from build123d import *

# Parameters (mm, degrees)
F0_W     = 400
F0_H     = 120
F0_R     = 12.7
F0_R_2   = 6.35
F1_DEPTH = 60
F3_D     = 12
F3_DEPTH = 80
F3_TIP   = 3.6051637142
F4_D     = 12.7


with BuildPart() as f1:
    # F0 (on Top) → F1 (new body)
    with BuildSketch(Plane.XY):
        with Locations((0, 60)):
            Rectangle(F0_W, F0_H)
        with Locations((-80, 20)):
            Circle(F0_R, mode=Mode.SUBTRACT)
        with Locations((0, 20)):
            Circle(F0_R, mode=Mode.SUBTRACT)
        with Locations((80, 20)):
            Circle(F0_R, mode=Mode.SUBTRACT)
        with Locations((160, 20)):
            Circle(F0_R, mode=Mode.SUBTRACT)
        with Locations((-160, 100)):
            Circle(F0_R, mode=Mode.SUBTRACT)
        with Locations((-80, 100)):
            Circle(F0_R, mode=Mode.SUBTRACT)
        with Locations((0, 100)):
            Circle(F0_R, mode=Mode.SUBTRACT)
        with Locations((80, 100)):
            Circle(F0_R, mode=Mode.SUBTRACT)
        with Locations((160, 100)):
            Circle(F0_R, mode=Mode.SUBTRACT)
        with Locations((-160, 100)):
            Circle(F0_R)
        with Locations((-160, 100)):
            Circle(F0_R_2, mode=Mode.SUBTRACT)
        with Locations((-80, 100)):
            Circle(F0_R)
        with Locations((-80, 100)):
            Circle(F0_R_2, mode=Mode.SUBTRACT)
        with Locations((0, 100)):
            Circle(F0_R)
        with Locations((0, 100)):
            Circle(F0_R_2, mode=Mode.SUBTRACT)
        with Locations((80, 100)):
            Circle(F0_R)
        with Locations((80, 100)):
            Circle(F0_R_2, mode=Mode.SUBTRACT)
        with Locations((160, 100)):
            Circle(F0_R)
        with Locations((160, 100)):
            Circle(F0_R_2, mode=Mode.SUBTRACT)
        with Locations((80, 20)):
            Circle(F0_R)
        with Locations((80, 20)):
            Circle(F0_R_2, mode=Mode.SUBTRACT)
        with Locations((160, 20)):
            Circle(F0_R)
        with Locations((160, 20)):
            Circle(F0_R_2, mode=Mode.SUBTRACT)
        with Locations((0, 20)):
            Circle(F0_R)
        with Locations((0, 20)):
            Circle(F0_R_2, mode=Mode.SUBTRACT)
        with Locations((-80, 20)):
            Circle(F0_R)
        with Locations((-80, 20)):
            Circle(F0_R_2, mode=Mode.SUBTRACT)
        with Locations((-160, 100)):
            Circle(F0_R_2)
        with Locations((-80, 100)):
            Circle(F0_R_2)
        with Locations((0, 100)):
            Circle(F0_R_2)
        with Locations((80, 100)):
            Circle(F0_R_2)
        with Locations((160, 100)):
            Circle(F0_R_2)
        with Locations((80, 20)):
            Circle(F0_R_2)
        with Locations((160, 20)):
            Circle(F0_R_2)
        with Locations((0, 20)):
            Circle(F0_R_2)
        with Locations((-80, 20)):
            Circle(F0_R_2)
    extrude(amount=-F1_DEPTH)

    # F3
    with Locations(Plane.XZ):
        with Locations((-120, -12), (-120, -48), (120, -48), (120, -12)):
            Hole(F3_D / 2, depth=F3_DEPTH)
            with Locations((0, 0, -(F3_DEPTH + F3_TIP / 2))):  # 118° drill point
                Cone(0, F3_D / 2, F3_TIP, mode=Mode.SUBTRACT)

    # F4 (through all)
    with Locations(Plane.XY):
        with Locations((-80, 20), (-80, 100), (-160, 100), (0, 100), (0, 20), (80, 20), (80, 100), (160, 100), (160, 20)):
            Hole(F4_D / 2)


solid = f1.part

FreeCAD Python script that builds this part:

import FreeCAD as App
import Part
import Sketcher

doc = App.newDocument("Part")
body = doc.addObject("PartDesign::Body", "Body")

# Sketch on XY plane
sketch1 = doc.addObject("Sketcher::SketchObject", "Sketch")
body.addObject(sketch1)
sketch1.AttachmentSupport = (doc.XY_Plane, [""])
sketch1.MapMode = "FlatFace"
sketch1.addGeometry([
    Part.LineSegment(App.Vector(-200, 120, 0), App.Vector(-200, 0, 0)),
    Part.LineSegment(App.Vector(-200, 0, 0), App.Vector(200, 0, 0)),
    Part.LineSegment(App.Vector(200, 0, 0), App.Vector(200, 120, 0)),
    Part.LineSegment(App.Vector(200, 120, 0), App.Vector(-200, 120, 0)),
], False)
sketch1.addConstraint([
    Sketcher.Constraint("Coincident", 0, 2, 1, 1),
    Sketcher.Constraint("Coincident", 1, 2, 2, 1),
    Sketcher.Constraint("Coincident", 2, 2, 3, 1),
    Sketcher.Constraint("Coincident", 3, 2, 0, 1),
    Sketcher.Constraint("Vertical", 0),
    Sketcher.Constraint("Horizontal", 1),
    Sketcher.Constraint("Vertical", 2),
    Sketcher.Constraint("Horizontal", 3),
    Sketcher.Constraint("Symmetric", 0, 2, 1, 2, -1, 1),
    Sketcher.Constraint("DistanceX", 1, 1, 1, 2, 400.0),
    Sketcher.Constraint("DistanceY", 0, 2, 0, 1, 120.0),
])
pad1 = doc.addObject("PartDesign::Pad", "Pad")
body.addObject(pad1)
pad1.Profile = sketch1
pad1.Length = 60
pad1.Reversed = True

# Sketch on XZ plane
sketch2 = doc.addObject("Sketcher::SketchObject", "Sketch001")
body.addObject(sketch2)
sketch2.AttachmentSupport = (doc.XZ_Plane, [""])
sketch2.MapMode = "FlatFace"
sketch2.addGeometry([
    Part.Circle(App.Vector(-120, -12, 0), App.Vector(0, 0, 1), 6),
    Part.Circle(App.Vector(-120, -48, 0), App.Vector(0, 0, 1), 6),
    Part.Circle(App.Vector(120, -48, 0), App.Vector(0, 0, 1), 6),
    Part.Circle(App.Vector(120, -12, 0), App.Vector(0, 0, 1), 6),
], False)
sketch2.addConstraint([
    Sketcher.Constraint("Equal", 0, 1),
    Sketcher.Constraint("Equal", 1, 2),
    Sketcher.Constraint("Equal", 2, 3),
    Sketcher.Constraint("Symmetric", 1, 3, 2, 3, -2),
    Sketcher.Constraint("Symmetric", 0, 3, 3, 3, -2),
    Sketcher.Constraint("Vertical", 0, 3, 1, 3),
    Sketcher.Constraint("Diameter", 0, 12.0),
    Sketcher.Constraint("DistanceX", 0, 3, -1, 1, 120.0),
    Sketcher.Constraint("DistanceY", 0, 3, -1, 1, 12.0),
    Sketcher.Constraint("DistanceY", 1, 3, -1, 1, 48.0),
])
doc.recompute()
hole = doc.addObject("PartDesign::Hole", "Hole")
body.addObject(hole)
hole.Profile = sketch2
hole.ThreadType = "None"
hole.Diameter = 12
hole.DepthType = "Dimension"
hole.Depth = 80
hole.DrillPoint = "Angled"
hole.DrillPointAngle = 118

# Sketch on XY plane
sketch3 = doc.addObject("Sketcher::SketchObject", "Sketch002")
body.addObject(sketch3)
sketch3.AttachmentSupport = (doc.XY_Plane, [""])
sketch3.MapMode = "FlatFace"
sketch3.addGeometry([
    Part.Circle(App.Vector(-80, 20, 0), App.Vector(0, 0, 1), 6),  # 0
    Part.Circle(App.Vector(-80, 100, 0), App.Vector(0, 0, 1), 6),  # 1
    Part.Circle(App.Vector(-160, 100, 0), App.Vector(0, 0, 1), 6),  # 2
    Part.Circle(App.Vector(0, 100, 0), App.Vector(0, 0, 1), 6),  # 3
    Part.Circle(App.Vector(0, 20, 0), App.Vector(0, 0, 1), 6),  # 4
    Part.Circle(App.Vector(80, 20, 0), App.Vector(0, 0, 1), 6),  # 5
    Part.Circle(App.Vector(80, 100, 0), App.Vector(0, 0, 1), 6),  # 6
    Part.Circle(App.Vector(160, 100, 0), App.Vector(0, 0, 1), 6),  # 7
    Part.Circle(App.Vector(160, 20, 0), App.Vector(0, 0, 1), 6),  # 8
], False)
sketch3.addConstraint([
    Sketcher.Constraint("Equal", 0, 1),
    Sketcher.Constraint("Equal", 1, 2),
    Sketcher.Constraint("Equal", 2, 3),
    Sketcher.Constraint("Equal", 3, 4),
    Sketcher.Constraint("Equal", 4, 5),
    Sketcher.Constraint("Equal", 5, 6),
    Sketcher.Constraint("Equal", 6, 7),
    Sketcher.Constraint("Equal", 7, 8),
    Sketcher.Constraint("Symmetric", 0, 3, 5, 3, -2),
    Sketcher.Constraint("Symmetric", 1, 3, 6, 3, -2),
    Sketcher.Constraint("Symmetric", 2, 3, 7, 3, -2),
    Sketcher.Constraint("PointOnObject", 3, 3, -2),
    Sketcher.Constraint("PointOnObject", 4, 3, -2),
    Sketcher.Constraint("Horizontal", 1, 3, 2, 3),
    Sketcher.Constraint("Horizontal", 2, 3, 3, 3),
    Sketcher.Constraint("Horizontal", 0, 3, 4, 3),
    Sketcher.Constraint("Horizontal", 5, 3, 8, 3),
    Sketcher.Constraint("Vertical", 0, 3, 1, 3),
    Sketcher.Constraint("Vertical", 7, 3, 8, 3),
    Sketcher.Constraint("Diameter", 0, 12.7),
    Sketcher.Constraint("DistanceX", 0, 3, -1, 1, 80.0),
    Sketcher.Constraint("DistanceY", -1, 1, 0, 3, 20.0),
    Sketcher.Constraint("DistanceY", -1, 1, 1, 3, 100.0),
    Sketcher.Constraint("DistanceX", 2, 3, -1, 1, 160.0),
])
doc.recompute()
hole2 = doc.addObject("PartDesign::Hole", "Hole001")
body.addObject(hole2)
hole2.Profile = sketch3
hole2.ThreadType = "None"
hole2.Diameter = 12.7
hole2.DepthType = "ThroughAll"

doc.recompute()
